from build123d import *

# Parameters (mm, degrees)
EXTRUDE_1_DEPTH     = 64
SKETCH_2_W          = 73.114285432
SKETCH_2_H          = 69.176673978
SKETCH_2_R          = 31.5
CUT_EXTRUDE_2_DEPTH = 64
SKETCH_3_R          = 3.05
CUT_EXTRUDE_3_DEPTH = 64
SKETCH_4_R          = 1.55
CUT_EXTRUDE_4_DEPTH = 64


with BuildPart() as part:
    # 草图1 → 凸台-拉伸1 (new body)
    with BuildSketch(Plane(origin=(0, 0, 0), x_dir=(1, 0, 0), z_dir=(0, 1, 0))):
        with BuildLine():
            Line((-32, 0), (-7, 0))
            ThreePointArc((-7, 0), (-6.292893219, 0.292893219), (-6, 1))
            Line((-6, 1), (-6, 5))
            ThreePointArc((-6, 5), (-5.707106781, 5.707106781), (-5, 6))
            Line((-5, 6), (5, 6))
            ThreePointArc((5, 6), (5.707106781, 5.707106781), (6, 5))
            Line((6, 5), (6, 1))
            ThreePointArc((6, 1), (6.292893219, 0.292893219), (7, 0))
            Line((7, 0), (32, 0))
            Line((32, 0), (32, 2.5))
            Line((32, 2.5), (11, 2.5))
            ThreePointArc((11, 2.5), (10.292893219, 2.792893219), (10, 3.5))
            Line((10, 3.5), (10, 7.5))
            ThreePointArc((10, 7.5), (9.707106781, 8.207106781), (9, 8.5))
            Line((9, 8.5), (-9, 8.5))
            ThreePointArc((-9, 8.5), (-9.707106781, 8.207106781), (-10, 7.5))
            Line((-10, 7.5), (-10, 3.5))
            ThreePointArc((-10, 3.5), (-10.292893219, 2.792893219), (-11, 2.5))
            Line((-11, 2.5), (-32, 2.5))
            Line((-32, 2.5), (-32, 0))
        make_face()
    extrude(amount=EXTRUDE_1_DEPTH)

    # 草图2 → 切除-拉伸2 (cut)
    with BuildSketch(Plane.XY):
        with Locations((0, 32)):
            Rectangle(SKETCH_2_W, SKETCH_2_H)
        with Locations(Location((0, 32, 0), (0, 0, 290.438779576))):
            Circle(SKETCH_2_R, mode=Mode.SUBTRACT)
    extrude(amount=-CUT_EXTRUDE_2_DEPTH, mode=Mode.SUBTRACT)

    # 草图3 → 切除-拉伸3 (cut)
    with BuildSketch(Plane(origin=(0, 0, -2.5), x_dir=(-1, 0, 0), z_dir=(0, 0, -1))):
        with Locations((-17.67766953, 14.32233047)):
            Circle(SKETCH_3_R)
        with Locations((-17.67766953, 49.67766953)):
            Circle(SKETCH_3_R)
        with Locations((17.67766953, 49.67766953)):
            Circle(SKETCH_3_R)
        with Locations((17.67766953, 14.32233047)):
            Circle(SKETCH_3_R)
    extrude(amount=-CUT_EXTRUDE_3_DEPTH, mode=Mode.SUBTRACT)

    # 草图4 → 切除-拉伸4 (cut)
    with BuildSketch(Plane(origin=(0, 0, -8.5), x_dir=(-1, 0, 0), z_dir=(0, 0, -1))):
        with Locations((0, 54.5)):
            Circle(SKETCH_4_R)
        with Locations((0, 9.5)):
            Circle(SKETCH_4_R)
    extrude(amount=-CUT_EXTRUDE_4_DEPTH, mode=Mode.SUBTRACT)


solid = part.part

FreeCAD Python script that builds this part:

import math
import FreeCAD as App
import Part
import Sketcher
from FreeCAD import Vector
Q = App.Units.Quantity

doc = App.newDocument("Part")
body = doc.addObject("PartDesign::Body", "Body")

sketch1 = body.newObject("Sketcher::SketchObject", "Sketch")
sketch1.AttachmentSupport = (doc.getObject("XZ_Plane"), [""])
sketch1.MapMode = "FlatFace"
sketch1.addGeometry([
    Part.LineSegment(Vector(-32, 0, 0), Vector(-7, 0, 0)),
    Part.ArcOfCircle(Part.Circle(Vector(-7, -1, 0), Vector(0, 0, 1), 1), math.radians(0), math.radians(90)),
    Part.LineSegment(Vector(-6, -1, 0), Vector(-6, -5, 0)),
    Part.ArcOfCircle(Part.Circle(Vector(-5, -5, 0), Vector(0, 0, 1), 1), math.radians(-180), math.radians(-90)),
    Part.LineSegment(Vector(-5, -6, 0), Vector(5, -6, 0)),
    Part.ArcOfCircle(Part.Circle(Vector(5, -5, 0), Vector(0, 0, 1), 1), math.radians(-90), math.radians(0)),
    Part.LineSegment(Vector(6, -5, 0), Vector(6, -1, 0)),
    Part.ArcOfCircle(Part.Circle(Vector(7, -1, 0), Vector(0, 0, 1), 1), math.radians(90), math.radians(180)),
    Part.LineSegment(Vector(7, 0, 0), Vector(32, 0, 0)),
    Part.LineSegment(Vector(32, 0, 0), Vector(32, -2.5, 0)),
    Part.LineSegment(Vector(32, -2.5, 0), Vector(11, -2.5, 0)),
    Part.ArcOfCircle(Part.Circle(Vector(11, -3.5, 0), Vector(0, 0, 1), 1), math.radians(90), math.radians(180)),
    Part.LineSegment(Vector(10, -3.5, 0), Vector(10, -7.5, 0)),
    Part.ArcOfCircle(Part.Circle(Vector(9, -7.5, 0), Vector(0, 0, 1), 1), math.radians(-90), math.radians(0)),
    Part.LineSegment(Vector(9, -8.5, 0), Vector(-9, -8.5, 0)),
    Part.ArcOfCircle(Part.Circle(Vector(-9, -7.5, 0), Vector(0, 0, 1), 1), math.radians(-180), math.radians(-90)),
    Part.LineSegment(Vector(-10, -7.5, 0), Vector(-10, -3.5, 0)),
    Part.ArcOfCircle(Part.Circle(Vector(-11, -3.5, 0), Vector(0, 0, 1), 1), math.radians(0), math.radians(90)),
    Part.LineSegment(Vector(-11, -2.5, 0), Vector(-32, -2.5, 0)),
    Part.LineSegment(Vector(-32, -2.5, 0), Vector(-32, 0, 0)),
], False)
sketch1.addConstraint([
    Sketcher.Constraint("Tangent", 0, 2, 1, 2),
    Sketcher.Constraint("Tangent", 1, 1, 2, 1),
    Sketcher.Constraint("Tangent", 2, 2, 3, 1),
    Sketcher.Constraint("Tangent", 3, 2, 4, 1),
    Sketcher.Constraint("Tangent", 4, 2, 5, 1),
    Sketcher.Constraint("Tangent", 5, 2, 6, 1),
    Sketcher.Constraint("Tangent", 6, 2, 7, 2),
    Sketcher.Constraint("Tangent", 7, 1, 8, 1),
    Sketcher.Constraint("Coincident", 8, 2, 9, 1),
    Sketcher.Constraint("Coincident", 9, 2, 10, 1),
    Sketcher.Constraint("Tangent", 10, 2, 11, 1),
    Sketcher.Constraint("Tangent", 11, 2, 12, 1),
    Sketcher.Constraint("Tangent", 12, 2, 13, 2),
    Sketcher.Constraint("Tangent", 13, 1, 14, 1),
    Sketcher.Constraint("Tangent", 14, 2, 15, 2),
    Sketcher.Constraint("Tangent", 15, 1, 16, 1),
    Sketcher.Constraint("Tangent", 16, 2, 17, 1),
    Sketcher.Constraint("Tangent", 17, 2, 18, 1),
    Sketcher.Constraint("Coincident", 18, 2, 19, 1),
    Sketcher.Constraint("Coincident", 19, 2, 0, 1),
    Sketcher.Constraint("Horizontal", 0),
    Sketcher.Constraint("Vertical", 2),
    Sketcher.Constraint("Horizontal", 4),
    Sketcher.Constraint("Vertical", 6),
    Sketcher.Constraint("Horizontal", 8),
    Sketcher.Constraint("Vertical", 9),
    Sketcher.Constraint("Horizontal", 10),
    Sketcher.Constraint("Vertical", 12),
    Sketcher.Constraint("Horizontal", 14),
    Sketcher.Constraint("Vertical", 16),
    Sketcher.Constraint("Horizontal", 18),
    Sketcher.Constraint("Vertical", 19),
    Sketcher.Constraint("Equal", 1, 3),
    Sketcher.Constraint("Equal", 3, 5),
    Sketcher.Constraint("Equal", 5, 7),
    Sketcher.Constraint("Equal", 7, 11),
    Sketcher.Constraint("Equal", 11, 13),
    Sketcher.Constraint("Equal", 13, 15),
    Sketcher.Constraint("Equal", 15, 17),
    Sketcher.Constraint("Symmetric", 0, 2, 7, 1, -1, 1),
    Sketcher.Constraint("Symmetric", 11, 3, 17, 3, -2),
    Sketcher.Constraint("Symmetric", 8, 2, 19, 2, -2),
    Sketcher.Constraint("Equal", 6, 12),
    Sketcher.Constraint("Radius", 1, Q("1 mm")),
    Sketcher.Constraint("DistanceX", 0, 1, 0, 2, Q("25 mm")),
    Sketcher.Constraint("DistanceX", 4, 1, 4, 2, Q("10 mm")),
    Sketcher.Constraint("DistanceX", 10, 2, 10, 1, Q("21 mm")),
    Sketcher.Constraint("DistanceY", 2, 2, 2, 1, Q("4 mm")),
    Sketcher.Constraint("DistanceY", 9, 2, 9, 1, Q("2.5 mm")),
])
pad1 = body.newObject("PartDesign::Pad", "Pad")
pad1.Profile = sketch1
pad1.Length = 64
pad1.Reversed = True

sketch2 = body.newObject("Sketcher::SketchObject", "Sketch001")
sketch2.AttachmentSupport = (doc.getObject("XY_Plane"), [""])
sketch2.MapMode = "FlatFace"
sketch2.addGeometry([
    Part.LineSegment(Vector(-36.557143, 66.588337, 0), Vector(-36.557143, -2.588337, 0)),
    Part.LineSegment(Vector(-36.557143, -2.588337, 0), Vector(36.557143, -2.588337, 0)),
    Part.LineSegment(Vector(36.557143, -2.588337, 0), Vector(36.557143, 66.588337, 0)),
    Part.LineSegment(Vector(36.557143, 66.588337, 0), Vector(-36.557143, 66.588337, 0)),
    Part.Circle(Vector(0, 32, 0), Vector(0, 0, 1), 31.5),
], False)
sketch2.addConstraint([
    Sketcher.Constraint("Coincident", 0, 2, 1, 1),
    Sketcher.Constraint("Coincident", 1, 2, 2, 1),
    Sketcher.Constraint("Coincident", 2, 2, 3, 1),
    Sketcher.Constraint("Coincident", 3, 2, 0, 1),
    Sketcher.Constraint("Vertical", 0),
    Sketcher.Constraint("Horizontal", 1),
    Sketcher.Constraint("Vertical", 2),
    Sketcher.Constraint("Horizontal", 3),
    Sketcher.Constraint("PointOnObject", 4, 3, -2),
    Sketcher.Constraint("Diameter", 4, Q("63 mm")),
    Sketcher.Constraint("DistanceY", -1, 1, 4, 3, Q("32 mm")),
    Sketcher.Constraint("DistanceX", 1, 1, 1, 2, Q("73.114285 mm")),
    Sketcher.Constraint("DistanceY", 0, 2, 0, 1, Q("69.176674 mm")),
    Sketcher.Constraint("DistanceX", 0, 2, -1, 1, Q("36.557143 mm")),
    Sketcher.Constraint("DistanceY", 0, 2, -1, 1, Q("2.588337 mm")),
])
pocket1 = body.newObject("PartDesign::Pocket", "Pocket")
pocket1.Profile = sketch2
pocket1.Length = 64

sketch3 = body.newObject("Sketcher::SketchObject", "Sketch002")
sketch3.AttachmentSupport = (doc.getObject("XY_Plane"), [""])
sketch3.MapMode = "FlatFace"
sketch3.AttachmentOffset = App.Placement(Vector(0, 0, -2.5), App.Rotation())
sketch3.addGeometry([
    Part.Circle(Vector(17.67767, 14.32233, 0), Vector(0, 0, 1), 3.05),
    Part.Circle(Vector(17.67767, 49.67767, 0), Vector(0, 0, 1), 3.05),
    Part.Circle(Vector(-17.67767, 49.67767, 0), Vector(0, 0, 1), 3.05),
    Part.Circle(Vector(-17.67767, 14.32233, 0), Vector(0, 0, 1), 3.05),
], False)
sketch3.addConstraint([
    Sketcher.Constraint("Equal", 0, 1),
    Sketcher.Constraint("Equal", 1, 2),
    Sketcher.Constraint("Equal", 2, 3),
    Sketcher.Constraint("Symmetric", 1, 3, 2, 3, -2),
    Sketcher.Constraint("Symmetric", 0, 3, 3, 3, -2),
    Sketcher.Constraint("Vertical", 0, 3, 1, 3),
    Sketcher.Constraint("Diameter", 0, Q("6.1 mm")),
    Sketcher.Constraint("DistanceX", -1, 1, 0, 3, Q("17.67767 mm")),
    Sketcher.Constraint("DistanceY", -1, 1, 0, 3, Q("14.32233 mm")),
    Sketcher.Constraint("DistanceY", -1, 1, 1, 3, Q("49.67767 mm")),
])
pocket2 = body.newObject("PartDesign::Pocket", "Pocket001")
pocket2.Profile = sketch3
pocket2.Length = 64
pocket2.Reversed = True

sketch4 = body.newObject("Sketcher::SketchObject", "Sketch003")
sketch4.AttachmentSupport = (doc.getObject("XY_Plane"), [""])
sketch4.MapMode = "FlatFace"
sketch4.AttachmentOffset = App.Placement(Vector(0, 0, -8.5), App.Rotation())
sketch4.addGeometry([
    Part.Circle(Vector(0, 54.5, 0), Vector(0, 0, 1), 1.55),
    Part.Circle(Vector(0, 9.5, 0), Vector(0, 0, 1), 1.55),
], False)
sketch4.addConstraint([
    Sketcher.Constraint("Equal", 0, 1),
    Sketcher.Constraint("PointOnObject", 0, 3, -2),
    Sketcher.Constraint("PointOnObject", 1, 3, -2),
    Sketcher.Constraint("Diameter", 0, Q("3.1 mm")),
    Sketcher.Constraint("DistanceY", 1, 3, 0, 3, Q("45 mm")),
    Sketcher.Constraint("DistanceY", -1, 1, 0, 3, Q("54.5 mm")),
])
pocket3 = body.newObject("PartDesign::Pocket", "Pocket002")
pocket3.Profile = sketch4
pocket3.Length = 64
pocket3.Reversed = True

doc.recompute()
